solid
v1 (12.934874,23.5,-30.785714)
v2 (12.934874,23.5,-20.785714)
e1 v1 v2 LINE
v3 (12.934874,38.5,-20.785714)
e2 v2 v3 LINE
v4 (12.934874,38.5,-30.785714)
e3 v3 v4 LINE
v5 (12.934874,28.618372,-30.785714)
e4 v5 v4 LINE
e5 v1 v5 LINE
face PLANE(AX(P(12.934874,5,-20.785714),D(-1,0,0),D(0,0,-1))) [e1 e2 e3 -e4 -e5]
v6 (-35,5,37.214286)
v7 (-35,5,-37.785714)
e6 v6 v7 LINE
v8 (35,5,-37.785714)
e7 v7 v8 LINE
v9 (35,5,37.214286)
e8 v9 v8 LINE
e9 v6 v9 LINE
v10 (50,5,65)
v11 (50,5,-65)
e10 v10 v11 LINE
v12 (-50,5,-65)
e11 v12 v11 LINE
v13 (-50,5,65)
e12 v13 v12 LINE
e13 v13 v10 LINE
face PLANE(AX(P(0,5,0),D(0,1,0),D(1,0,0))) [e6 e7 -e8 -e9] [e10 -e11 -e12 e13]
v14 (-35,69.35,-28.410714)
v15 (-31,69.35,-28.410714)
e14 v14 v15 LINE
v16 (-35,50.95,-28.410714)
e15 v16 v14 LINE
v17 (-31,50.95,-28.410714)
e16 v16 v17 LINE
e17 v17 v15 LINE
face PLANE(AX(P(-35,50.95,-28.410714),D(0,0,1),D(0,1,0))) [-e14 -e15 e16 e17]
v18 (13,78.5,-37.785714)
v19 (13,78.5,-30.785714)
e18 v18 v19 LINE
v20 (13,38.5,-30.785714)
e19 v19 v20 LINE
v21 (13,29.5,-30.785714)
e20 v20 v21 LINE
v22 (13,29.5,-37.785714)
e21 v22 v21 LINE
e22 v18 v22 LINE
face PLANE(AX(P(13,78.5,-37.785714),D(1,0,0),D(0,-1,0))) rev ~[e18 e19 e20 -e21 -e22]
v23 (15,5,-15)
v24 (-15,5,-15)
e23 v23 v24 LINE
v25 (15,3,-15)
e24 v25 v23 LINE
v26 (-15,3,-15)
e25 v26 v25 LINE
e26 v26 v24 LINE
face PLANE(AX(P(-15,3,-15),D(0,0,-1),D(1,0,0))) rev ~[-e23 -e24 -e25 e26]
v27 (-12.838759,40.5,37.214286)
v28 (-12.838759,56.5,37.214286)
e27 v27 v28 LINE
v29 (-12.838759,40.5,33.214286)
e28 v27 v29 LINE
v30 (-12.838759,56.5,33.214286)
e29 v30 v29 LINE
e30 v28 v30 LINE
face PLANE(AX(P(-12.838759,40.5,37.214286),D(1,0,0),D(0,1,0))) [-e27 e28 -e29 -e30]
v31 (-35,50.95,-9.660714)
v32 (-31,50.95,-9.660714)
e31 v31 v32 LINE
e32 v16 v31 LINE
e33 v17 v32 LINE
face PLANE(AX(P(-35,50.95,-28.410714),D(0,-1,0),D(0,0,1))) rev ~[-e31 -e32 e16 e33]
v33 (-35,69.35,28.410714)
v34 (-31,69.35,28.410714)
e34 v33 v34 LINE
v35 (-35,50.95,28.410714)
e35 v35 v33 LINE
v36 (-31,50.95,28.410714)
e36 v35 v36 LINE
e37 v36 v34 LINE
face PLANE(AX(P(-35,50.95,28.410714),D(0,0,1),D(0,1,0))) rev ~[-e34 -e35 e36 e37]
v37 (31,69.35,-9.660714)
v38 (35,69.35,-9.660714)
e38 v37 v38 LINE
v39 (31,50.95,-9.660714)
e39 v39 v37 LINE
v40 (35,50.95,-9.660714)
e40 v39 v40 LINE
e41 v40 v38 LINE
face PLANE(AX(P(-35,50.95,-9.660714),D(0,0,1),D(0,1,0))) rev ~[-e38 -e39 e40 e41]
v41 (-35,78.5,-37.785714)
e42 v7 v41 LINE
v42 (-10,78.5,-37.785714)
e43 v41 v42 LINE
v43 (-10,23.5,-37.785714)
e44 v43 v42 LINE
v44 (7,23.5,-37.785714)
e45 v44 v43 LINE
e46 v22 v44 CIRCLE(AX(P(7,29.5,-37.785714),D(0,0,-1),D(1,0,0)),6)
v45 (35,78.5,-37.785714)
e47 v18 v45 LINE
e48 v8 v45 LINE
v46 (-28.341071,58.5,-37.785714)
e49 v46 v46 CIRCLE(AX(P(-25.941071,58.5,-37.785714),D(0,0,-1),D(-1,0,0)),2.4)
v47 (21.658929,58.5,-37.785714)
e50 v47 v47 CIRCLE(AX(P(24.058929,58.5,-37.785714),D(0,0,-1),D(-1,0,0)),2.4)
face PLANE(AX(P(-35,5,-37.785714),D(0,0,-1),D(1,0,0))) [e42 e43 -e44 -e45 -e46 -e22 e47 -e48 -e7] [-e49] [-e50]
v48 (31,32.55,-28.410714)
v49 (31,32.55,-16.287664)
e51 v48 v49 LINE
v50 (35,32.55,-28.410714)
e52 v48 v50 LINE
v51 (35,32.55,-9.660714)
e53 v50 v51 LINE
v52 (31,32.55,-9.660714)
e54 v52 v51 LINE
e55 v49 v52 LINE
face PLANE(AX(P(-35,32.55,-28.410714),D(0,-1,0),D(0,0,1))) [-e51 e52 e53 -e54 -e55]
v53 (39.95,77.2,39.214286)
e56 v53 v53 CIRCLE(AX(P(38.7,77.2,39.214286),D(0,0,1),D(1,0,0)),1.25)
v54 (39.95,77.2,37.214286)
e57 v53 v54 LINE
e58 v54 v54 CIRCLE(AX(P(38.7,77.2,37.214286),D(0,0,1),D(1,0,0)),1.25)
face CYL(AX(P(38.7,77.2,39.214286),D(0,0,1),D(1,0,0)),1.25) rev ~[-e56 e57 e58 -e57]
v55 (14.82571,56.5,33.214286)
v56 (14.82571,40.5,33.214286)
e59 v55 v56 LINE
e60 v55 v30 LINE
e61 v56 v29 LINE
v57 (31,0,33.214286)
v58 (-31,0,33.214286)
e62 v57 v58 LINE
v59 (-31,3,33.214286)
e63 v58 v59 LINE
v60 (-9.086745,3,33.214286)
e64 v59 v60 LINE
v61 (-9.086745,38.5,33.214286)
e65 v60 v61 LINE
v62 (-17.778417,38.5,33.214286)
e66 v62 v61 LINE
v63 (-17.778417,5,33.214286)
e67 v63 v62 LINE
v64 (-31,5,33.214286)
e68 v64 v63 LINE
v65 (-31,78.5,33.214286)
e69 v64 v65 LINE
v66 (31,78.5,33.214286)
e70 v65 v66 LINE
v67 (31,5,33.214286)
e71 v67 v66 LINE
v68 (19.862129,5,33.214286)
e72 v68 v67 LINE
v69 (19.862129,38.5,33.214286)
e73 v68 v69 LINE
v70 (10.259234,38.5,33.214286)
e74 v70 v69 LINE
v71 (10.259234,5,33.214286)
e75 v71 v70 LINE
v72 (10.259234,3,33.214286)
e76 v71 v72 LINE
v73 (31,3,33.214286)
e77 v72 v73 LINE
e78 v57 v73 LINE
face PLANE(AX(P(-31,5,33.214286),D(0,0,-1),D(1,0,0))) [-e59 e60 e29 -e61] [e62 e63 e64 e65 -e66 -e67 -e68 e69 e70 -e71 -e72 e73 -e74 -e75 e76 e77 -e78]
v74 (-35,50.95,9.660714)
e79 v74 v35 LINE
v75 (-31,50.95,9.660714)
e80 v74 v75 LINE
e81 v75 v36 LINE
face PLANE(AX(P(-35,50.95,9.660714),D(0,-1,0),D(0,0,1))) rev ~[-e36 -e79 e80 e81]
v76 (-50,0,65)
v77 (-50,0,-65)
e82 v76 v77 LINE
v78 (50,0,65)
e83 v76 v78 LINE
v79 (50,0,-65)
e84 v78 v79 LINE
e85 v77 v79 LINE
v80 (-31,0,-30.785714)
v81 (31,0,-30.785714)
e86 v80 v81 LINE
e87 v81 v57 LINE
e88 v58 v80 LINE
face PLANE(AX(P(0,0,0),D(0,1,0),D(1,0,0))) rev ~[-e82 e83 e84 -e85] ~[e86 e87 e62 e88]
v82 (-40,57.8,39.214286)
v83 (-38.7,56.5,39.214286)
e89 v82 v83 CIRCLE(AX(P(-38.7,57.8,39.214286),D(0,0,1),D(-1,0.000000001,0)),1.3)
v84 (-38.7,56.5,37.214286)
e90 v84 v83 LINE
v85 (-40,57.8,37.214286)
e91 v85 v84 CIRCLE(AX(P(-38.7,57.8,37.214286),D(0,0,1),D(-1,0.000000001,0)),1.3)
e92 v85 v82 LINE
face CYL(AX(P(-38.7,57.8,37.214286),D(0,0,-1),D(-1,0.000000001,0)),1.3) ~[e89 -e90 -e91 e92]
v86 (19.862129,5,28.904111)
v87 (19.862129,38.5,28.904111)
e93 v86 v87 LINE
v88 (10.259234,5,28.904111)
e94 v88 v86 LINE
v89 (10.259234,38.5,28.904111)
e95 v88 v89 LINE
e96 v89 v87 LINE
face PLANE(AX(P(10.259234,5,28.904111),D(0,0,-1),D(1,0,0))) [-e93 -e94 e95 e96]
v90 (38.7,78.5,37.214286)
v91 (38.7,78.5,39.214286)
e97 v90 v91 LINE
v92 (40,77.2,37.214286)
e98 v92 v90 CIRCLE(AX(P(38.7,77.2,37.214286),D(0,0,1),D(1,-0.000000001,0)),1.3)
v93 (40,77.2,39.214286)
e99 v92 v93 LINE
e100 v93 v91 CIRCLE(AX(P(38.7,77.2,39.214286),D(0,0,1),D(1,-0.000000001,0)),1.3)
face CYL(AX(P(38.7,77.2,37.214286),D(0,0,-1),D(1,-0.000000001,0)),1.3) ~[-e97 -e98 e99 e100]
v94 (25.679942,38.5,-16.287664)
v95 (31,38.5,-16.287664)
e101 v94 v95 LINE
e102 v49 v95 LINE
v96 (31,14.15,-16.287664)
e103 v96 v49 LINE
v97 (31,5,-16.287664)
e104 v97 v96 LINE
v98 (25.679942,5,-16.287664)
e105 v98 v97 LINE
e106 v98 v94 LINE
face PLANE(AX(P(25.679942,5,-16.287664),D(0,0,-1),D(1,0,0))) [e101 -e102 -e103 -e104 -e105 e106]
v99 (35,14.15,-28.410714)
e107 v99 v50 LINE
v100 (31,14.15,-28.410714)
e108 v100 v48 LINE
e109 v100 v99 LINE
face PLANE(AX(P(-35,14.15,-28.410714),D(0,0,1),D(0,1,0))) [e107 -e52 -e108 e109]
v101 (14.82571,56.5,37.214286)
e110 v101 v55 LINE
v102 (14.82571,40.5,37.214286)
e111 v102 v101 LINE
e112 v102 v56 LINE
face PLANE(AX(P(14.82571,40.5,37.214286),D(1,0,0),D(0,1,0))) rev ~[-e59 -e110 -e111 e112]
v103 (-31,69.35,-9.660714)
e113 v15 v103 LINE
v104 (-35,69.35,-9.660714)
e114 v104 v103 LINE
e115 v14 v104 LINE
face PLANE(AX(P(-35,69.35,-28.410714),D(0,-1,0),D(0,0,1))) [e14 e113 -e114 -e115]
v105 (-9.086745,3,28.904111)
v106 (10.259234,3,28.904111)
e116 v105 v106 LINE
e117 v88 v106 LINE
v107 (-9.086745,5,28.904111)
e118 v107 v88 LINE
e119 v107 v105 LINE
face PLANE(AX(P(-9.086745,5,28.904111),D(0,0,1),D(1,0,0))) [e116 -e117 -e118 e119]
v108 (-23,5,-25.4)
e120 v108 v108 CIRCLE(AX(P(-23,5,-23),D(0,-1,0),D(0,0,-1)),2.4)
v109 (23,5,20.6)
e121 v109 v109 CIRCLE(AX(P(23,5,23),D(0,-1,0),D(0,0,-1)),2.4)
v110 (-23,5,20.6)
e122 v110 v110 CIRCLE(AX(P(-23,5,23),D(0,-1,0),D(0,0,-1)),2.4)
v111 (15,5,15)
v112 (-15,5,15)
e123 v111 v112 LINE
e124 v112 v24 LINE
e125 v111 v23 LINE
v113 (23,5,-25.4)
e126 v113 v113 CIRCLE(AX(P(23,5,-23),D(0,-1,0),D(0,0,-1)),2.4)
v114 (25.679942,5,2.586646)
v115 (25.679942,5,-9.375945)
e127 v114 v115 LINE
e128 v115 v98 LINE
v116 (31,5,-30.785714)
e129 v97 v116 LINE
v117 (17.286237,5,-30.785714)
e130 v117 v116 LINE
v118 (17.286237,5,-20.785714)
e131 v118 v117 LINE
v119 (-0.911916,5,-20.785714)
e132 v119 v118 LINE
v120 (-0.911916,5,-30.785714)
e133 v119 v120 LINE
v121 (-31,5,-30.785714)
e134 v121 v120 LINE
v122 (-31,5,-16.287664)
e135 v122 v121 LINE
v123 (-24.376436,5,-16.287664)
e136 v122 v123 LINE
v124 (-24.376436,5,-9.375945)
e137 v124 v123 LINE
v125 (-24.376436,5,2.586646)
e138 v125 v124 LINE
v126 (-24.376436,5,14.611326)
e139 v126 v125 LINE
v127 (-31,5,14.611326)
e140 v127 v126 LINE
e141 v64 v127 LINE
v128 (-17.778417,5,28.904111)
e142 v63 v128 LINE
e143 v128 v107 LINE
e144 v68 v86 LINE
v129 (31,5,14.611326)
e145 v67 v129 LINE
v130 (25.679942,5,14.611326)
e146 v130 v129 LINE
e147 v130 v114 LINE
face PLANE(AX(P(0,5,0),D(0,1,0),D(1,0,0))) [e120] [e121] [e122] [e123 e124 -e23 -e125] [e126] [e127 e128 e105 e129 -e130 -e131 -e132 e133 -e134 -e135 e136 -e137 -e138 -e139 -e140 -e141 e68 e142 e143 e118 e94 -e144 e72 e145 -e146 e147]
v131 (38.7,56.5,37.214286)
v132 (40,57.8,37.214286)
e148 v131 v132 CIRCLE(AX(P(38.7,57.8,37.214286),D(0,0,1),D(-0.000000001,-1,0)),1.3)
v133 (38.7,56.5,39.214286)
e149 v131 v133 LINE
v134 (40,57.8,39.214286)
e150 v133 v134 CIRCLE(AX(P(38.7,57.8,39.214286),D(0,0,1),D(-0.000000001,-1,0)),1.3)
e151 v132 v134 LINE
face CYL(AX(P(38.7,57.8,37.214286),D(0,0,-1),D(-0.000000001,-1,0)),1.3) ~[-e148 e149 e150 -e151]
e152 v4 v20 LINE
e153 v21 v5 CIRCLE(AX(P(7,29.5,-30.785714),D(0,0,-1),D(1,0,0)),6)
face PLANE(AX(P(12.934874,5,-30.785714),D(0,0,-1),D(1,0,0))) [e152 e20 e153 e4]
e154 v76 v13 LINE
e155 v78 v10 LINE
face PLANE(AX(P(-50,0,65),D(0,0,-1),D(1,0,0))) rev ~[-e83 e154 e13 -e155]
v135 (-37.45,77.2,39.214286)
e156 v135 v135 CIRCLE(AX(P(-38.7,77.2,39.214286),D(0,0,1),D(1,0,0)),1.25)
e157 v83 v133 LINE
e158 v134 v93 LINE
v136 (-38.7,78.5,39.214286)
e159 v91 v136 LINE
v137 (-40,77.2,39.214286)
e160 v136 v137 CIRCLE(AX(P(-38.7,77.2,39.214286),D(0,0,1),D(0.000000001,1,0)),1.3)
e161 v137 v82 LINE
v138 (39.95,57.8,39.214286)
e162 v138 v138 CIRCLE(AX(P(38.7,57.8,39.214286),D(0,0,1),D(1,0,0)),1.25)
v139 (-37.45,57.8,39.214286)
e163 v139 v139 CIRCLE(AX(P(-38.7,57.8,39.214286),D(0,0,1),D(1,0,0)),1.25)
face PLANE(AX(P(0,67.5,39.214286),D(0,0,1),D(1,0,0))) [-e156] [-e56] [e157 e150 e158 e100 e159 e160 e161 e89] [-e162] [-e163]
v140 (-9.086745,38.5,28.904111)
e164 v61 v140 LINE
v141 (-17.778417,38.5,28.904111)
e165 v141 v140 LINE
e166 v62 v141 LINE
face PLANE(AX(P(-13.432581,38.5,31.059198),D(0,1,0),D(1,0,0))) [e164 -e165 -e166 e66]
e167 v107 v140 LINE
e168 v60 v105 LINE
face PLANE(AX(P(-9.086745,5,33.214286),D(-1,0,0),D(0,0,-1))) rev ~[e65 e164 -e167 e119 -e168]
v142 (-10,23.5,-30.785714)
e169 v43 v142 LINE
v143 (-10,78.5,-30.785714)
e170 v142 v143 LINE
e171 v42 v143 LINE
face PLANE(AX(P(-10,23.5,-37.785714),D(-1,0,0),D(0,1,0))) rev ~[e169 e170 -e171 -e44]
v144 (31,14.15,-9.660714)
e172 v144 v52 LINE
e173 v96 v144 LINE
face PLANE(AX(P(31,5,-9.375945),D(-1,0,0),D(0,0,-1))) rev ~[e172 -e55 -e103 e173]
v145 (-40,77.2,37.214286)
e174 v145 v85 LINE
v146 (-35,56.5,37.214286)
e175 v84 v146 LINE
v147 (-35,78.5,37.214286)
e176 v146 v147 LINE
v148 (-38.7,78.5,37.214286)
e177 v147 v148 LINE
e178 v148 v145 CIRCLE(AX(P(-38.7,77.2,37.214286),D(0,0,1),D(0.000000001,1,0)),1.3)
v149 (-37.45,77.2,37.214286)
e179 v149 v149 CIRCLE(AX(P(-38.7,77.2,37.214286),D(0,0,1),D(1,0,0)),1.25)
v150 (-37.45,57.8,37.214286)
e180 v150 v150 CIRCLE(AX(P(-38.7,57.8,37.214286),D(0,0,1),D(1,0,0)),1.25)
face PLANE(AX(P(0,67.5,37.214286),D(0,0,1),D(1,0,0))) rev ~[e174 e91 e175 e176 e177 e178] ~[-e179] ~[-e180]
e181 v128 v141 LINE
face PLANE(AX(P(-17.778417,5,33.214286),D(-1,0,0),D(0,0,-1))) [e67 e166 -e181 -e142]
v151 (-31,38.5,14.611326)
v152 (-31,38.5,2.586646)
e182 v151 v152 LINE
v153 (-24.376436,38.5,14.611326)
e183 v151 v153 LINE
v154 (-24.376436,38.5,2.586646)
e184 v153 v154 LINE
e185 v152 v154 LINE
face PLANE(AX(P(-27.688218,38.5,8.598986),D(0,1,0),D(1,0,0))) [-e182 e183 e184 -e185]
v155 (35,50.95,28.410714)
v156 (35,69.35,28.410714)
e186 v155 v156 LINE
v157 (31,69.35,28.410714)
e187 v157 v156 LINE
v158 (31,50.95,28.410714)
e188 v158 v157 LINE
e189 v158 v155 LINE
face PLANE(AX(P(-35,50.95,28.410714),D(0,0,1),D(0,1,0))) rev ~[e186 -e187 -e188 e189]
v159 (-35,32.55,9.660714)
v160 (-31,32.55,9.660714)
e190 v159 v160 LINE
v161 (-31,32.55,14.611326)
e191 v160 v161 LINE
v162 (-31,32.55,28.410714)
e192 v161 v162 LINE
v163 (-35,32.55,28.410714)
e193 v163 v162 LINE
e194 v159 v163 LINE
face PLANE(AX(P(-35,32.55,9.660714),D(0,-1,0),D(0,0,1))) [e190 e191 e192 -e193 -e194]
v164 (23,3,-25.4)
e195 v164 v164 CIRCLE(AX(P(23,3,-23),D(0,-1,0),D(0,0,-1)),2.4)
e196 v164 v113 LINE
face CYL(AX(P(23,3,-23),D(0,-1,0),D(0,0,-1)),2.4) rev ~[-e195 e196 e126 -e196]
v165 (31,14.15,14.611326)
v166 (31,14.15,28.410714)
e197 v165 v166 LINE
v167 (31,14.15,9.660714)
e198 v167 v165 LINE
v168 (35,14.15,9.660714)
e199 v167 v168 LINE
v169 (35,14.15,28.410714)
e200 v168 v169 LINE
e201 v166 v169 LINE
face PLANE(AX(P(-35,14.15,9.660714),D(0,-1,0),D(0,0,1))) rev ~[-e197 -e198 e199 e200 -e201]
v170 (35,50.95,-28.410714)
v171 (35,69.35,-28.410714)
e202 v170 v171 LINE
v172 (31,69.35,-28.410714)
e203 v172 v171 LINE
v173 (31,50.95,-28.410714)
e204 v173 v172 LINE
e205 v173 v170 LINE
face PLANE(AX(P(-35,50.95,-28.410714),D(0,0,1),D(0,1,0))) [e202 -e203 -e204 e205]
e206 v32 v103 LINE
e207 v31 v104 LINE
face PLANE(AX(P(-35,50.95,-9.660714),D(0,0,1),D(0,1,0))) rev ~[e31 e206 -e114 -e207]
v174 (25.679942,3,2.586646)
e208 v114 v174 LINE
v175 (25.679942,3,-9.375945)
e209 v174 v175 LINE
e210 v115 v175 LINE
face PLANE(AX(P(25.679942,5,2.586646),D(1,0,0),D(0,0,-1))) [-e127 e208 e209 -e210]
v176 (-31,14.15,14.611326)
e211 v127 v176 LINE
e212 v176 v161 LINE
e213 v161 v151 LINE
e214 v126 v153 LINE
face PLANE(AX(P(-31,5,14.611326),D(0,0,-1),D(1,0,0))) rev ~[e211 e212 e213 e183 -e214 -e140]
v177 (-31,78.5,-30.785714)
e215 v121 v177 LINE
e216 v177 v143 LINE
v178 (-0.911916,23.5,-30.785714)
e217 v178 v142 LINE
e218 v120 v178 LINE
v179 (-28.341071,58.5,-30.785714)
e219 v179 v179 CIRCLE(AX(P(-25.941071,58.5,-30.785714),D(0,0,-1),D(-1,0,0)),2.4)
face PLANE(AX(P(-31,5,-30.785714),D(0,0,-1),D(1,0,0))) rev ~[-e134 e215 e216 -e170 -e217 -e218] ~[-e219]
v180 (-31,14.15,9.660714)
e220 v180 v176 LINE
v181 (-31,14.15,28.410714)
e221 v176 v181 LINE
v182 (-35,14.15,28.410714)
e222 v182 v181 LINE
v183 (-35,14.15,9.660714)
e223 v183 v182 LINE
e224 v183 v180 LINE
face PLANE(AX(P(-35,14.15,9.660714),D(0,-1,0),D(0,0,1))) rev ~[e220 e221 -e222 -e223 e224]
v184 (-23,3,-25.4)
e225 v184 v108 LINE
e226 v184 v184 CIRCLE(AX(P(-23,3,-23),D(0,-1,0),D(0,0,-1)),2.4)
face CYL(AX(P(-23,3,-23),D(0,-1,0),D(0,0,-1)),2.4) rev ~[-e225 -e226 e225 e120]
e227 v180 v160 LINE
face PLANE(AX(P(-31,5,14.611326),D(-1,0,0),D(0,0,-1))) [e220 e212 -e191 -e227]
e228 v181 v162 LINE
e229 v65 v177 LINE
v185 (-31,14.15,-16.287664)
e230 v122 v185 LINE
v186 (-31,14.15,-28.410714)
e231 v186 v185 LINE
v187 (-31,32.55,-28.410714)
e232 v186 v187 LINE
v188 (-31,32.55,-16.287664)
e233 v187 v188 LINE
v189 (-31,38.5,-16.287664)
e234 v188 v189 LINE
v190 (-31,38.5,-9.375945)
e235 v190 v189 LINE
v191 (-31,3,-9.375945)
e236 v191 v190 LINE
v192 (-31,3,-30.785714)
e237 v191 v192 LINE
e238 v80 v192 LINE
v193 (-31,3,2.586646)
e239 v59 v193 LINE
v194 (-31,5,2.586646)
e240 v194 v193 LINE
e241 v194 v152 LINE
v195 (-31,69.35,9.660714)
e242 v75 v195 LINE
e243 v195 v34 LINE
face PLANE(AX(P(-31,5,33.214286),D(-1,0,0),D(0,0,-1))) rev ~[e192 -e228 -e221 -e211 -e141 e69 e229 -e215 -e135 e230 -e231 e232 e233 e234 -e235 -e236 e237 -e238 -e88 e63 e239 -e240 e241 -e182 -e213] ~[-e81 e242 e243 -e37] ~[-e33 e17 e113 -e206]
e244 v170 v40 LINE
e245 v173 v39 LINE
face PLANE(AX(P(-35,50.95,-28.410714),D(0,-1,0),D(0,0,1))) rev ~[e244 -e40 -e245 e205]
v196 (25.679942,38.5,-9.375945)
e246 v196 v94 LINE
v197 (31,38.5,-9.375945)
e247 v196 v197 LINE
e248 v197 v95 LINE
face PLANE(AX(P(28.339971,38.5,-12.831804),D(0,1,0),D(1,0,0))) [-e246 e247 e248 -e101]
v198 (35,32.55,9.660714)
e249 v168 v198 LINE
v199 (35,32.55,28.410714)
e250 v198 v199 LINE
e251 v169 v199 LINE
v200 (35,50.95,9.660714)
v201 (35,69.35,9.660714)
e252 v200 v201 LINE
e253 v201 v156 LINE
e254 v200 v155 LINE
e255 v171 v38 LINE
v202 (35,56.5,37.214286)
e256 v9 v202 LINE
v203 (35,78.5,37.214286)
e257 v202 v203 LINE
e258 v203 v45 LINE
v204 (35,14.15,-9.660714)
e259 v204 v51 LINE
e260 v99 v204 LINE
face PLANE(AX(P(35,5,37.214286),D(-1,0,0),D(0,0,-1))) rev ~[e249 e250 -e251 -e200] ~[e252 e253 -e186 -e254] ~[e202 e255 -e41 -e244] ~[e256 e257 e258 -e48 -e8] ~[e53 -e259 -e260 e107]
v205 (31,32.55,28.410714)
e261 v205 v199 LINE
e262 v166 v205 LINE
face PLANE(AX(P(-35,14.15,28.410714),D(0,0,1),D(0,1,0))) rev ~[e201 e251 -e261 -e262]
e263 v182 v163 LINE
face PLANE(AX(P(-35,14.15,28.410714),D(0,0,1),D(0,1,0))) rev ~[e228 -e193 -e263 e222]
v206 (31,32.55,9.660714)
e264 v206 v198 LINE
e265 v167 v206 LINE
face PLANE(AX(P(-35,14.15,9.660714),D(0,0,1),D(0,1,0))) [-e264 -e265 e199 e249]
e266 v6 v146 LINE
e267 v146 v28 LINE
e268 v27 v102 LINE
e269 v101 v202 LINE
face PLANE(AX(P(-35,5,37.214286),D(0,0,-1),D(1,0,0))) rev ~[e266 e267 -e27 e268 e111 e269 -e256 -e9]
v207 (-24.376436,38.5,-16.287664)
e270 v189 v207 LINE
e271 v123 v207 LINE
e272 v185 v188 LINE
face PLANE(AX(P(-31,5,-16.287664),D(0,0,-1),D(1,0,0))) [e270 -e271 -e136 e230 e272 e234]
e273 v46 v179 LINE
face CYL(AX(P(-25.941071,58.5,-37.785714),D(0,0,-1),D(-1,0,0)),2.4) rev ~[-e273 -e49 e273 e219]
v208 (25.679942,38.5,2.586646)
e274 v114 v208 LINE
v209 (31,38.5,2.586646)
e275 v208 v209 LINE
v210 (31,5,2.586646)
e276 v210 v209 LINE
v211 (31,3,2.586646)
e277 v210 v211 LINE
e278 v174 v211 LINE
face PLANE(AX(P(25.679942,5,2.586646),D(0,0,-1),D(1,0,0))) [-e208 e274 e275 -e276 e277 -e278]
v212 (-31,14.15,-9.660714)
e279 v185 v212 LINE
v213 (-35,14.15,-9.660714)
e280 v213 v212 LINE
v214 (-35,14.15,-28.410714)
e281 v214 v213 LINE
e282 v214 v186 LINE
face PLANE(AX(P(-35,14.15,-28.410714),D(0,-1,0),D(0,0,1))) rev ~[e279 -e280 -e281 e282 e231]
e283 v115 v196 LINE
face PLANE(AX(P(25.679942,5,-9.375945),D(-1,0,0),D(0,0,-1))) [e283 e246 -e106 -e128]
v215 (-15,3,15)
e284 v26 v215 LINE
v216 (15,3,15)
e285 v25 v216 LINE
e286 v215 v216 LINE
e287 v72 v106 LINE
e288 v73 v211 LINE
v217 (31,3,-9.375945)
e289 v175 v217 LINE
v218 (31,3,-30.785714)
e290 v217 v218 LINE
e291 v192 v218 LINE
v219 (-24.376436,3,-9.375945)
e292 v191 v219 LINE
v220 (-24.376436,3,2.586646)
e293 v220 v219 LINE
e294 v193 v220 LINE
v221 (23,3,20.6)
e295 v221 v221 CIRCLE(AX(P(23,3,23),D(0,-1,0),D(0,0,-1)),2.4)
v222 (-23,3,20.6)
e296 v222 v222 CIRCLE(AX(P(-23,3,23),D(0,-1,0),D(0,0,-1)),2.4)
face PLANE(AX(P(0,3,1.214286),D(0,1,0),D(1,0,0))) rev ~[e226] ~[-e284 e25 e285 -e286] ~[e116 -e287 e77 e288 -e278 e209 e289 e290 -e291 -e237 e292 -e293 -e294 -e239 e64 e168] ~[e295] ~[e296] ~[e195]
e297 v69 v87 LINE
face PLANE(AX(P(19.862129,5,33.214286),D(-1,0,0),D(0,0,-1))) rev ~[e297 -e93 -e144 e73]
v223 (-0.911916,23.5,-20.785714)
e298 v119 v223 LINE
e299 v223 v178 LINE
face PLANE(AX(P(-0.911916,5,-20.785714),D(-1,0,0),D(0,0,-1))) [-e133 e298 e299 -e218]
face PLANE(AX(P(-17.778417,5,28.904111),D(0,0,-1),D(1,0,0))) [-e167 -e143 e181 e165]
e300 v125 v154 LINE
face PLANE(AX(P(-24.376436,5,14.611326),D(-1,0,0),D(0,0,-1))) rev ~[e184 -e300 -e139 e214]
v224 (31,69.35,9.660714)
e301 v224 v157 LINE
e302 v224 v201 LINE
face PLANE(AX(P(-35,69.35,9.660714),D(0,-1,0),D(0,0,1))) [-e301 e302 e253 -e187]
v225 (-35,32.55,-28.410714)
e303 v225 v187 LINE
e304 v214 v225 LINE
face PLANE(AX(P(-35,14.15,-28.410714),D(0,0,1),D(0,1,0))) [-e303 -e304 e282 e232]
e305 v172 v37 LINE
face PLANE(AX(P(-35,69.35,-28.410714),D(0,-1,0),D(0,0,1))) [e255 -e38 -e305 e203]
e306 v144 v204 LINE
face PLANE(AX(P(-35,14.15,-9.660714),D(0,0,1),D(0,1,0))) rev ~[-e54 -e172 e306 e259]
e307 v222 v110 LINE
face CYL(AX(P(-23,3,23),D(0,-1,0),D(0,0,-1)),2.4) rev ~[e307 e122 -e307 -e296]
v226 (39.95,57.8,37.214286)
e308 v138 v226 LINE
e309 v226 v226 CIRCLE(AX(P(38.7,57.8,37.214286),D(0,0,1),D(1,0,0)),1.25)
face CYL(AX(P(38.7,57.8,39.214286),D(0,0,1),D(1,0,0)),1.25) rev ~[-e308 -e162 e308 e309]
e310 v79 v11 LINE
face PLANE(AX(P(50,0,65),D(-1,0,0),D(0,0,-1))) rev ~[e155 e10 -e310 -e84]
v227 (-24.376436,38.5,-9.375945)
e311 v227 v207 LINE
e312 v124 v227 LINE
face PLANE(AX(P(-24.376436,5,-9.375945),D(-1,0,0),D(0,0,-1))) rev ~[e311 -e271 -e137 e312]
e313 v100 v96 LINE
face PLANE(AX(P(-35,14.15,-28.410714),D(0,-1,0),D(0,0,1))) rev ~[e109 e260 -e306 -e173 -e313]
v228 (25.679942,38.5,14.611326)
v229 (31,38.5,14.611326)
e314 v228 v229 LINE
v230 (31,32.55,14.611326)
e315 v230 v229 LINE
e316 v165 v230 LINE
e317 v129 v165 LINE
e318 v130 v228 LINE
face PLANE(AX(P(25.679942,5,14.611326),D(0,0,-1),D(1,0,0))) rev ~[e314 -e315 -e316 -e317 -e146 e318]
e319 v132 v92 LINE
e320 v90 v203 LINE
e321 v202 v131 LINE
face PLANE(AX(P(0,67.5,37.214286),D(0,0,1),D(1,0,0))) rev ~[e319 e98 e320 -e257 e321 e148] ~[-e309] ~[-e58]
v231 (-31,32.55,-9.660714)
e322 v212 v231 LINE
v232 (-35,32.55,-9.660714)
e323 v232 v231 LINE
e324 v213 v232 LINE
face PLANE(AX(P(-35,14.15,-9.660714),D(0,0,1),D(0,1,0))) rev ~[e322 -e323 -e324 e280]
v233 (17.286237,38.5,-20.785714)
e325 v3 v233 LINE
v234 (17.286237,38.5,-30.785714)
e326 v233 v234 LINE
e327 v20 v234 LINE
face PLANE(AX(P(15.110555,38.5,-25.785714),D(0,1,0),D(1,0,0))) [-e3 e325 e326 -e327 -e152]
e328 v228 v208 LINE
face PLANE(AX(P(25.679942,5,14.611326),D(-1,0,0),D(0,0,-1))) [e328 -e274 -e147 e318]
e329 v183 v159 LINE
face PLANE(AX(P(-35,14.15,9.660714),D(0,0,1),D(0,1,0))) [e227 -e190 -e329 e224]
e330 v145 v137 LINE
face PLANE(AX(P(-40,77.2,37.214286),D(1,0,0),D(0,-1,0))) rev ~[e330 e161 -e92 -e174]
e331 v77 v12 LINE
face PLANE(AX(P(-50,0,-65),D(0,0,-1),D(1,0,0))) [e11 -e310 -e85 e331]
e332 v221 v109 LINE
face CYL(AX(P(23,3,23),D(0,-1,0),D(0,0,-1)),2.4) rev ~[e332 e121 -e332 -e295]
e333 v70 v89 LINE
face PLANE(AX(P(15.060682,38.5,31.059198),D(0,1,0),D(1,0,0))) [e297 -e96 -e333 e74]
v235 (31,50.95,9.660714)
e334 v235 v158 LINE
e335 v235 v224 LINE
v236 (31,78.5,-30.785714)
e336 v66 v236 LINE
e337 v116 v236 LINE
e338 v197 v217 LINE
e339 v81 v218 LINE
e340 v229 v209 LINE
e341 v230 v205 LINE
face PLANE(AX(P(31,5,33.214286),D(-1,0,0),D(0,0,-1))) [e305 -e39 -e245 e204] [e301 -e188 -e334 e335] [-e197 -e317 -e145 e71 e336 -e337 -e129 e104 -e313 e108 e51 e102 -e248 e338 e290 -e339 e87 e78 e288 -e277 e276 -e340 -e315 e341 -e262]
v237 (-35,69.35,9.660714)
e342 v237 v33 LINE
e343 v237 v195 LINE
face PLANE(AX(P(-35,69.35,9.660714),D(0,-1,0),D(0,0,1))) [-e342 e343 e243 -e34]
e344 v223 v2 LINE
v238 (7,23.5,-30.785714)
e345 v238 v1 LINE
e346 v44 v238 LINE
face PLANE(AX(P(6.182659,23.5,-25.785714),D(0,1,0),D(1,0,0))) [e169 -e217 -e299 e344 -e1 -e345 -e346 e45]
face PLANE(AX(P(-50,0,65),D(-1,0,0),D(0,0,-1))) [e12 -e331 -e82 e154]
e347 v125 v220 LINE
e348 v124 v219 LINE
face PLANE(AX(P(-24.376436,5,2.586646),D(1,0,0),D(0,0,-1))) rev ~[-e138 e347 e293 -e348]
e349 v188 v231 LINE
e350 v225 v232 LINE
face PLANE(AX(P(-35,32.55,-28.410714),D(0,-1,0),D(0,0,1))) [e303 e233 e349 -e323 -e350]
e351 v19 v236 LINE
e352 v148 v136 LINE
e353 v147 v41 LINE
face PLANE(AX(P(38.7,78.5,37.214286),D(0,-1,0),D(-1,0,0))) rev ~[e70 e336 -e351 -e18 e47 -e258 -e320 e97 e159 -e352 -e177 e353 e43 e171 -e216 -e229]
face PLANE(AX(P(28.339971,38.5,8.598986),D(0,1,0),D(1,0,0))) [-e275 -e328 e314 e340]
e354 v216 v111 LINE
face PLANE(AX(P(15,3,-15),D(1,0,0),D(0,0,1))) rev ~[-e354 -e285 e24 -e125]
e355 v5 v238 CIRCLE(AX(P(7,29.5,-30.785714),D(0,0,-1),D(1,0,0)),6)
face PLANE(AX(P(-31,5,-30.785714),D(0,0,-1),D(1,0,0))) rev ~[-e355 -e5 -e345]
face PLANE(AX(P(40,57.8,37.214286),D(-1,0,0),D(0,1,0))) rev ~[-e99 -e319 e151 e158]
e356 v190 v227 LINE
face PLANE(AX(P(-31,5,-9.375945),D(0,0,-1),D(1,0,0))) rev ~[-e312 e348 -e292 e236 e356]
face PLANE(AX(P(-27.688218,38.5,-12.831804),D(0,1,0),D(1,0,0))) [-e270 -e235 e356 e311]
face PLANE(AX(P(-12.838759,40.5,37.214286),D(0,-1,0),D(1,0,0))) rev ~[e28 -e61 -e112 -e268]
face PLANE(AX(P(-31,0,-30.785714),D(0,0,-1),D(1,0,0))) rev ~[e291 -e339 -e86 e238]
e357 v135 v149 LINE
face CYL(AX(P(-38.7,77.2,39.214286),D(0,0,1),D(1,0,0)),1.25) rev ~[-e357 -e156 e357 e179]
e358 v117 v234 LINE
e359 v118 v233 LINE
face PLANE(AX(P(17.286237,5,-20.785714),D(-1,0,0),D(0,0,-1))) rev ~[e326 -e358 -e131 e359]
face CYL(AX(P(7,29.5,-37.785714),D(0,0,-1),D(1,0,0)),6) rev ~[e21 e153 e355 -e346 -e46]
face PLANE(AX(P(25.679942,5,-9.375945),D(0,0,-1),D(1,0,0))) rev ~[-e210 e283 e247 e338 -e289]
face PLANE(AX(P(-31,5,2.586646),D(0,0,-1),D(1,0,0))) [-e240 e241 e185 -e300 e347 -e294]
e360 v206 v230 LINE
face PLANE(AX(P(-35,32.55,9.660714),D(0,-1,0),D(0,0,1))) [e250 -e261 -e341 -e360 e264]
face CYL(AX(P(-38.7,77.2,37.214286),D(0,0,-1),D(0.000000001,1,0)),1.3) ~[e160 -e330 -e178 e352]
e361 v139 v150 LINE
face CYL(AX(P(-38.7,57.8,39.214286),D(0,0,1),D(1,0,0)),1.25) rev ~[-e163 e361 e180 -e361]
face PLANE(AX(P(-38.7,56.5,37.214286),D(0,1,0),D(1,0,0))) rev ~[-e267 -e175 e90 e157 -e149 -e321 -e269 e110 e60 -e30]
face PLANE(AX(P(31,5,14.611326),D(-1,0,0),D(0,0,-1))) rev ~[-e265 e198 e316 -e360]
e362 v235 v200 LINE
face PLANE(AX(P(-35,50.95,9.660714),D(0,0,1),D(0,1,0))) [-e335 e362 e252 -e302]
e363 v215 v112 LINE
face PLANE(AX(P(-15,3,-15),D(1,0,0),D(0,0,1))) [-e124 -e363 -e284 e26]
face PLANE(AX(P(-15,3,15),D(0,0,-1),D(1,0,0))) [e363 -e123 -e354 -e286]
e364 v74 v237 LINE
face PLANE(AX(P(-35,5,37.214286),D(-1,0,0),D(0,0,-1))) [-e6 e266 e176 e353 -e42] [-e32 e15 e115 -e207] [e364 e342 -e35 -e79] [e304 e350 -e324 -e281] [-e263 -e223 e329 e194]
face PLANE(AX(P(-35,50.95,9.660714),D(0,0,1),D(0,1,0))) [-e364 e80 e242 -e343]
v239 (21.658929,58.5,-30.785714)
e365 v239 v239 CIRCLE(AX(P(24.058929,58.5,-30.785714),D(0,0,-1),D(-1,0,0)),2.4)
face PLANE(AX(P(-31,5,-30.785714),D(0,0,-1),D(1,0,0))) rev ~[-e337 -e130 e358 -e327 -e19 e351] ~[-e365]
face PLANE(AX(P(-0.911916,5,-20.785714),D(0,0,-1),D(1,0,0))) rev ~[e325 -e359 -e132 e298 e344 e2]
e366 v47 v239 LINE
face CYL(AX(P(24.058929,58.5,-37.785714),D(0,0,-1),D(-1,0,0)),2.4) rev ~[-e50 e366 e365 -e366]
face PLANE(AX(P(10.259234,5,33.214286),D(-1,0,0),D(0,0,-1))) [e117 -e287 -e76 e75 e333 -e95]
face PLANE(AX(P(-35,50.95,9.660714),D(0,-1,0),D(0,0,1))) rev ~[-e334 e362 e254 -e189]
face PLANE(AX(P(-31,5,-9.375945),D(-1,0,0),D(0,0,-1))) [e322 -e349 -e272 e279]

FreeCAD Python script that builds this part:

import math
import FreeCAD as App
import Part
import Sketcher

V = App.Vector
Q = App.Units.Quantity


def add_polygon(sketch, points):
    """Adds a closed chain of lines whose ends are joined by coincident constraints."""
    first, n = sketch.GeometryCount, len(points)
    for a, b in zip(points, points[1:] + points[:1]):
        sketch.addGeometry(Part.LineSegment(App.Vector(*a, 0), App.Vector(*b, 0)), False)
    for i in range(n):
        sketch.addConstraint(Sketcher.Constraint("Coincident", first + i, 2, first + (i + 1) % n, 1))

doc = App.newDocument("Part")
body = doc.addObject("PartDesign::Body", "Body")

# Sketch on XZ plane
sketch1 = body.newObject("Sketcher::SketchObject", "Sketch")
sketch1.AttachmentSupport = (doc.getObject("XZ_Plane"), [""])
sketch1.MapMode = "FlatFace"
add_polygon(sketch1, [(-50, -65), (-50, 65), (50, 65), (50, -65)])  # lines 0-3
sketch1.addConstraint([
    Sketcher.Constraint("Vertical", 0),
    Sketcher.Constraint("Horizontal", 1),
    Sketcher.Constraint("Vertical", 2),
    Sketcher.Constraint("Horizontal", 3),
    Sketcher.Constraint("Symmetric", 0, 2, 2, 2, -1, 1),
    Sketcher.Constraint("DistanceX", 1, 1, 1, 2, Q("100 mm")),
    Sketcher.Constraint("DistanceY", 0, 1, 0, 2, Q("130 mm")),
])
pad1 = body.newObject("PartDesign::Pad", "Pad")
pad1.Profile = sketch1
pad1.Length = 5
pad1.Reversed = True

# Sketch on XZ plane
sketch2 = body.newObject("Sketcher::SketchObject", "Sketch001")
sketch2.AttachmentSupport = (doc.getObject("XZ_Plane"), [""])
sketch2.MapMode = "FlatFace"
sketch2.AttachmentOffset = App.Placement(V(0, 0, -5), App.Rotation())
add_polygon(sketch2, [(-35, -37.785714), (-35, 37.214286), (35, 37.214286), (35, -37.785714)])  # lines 0-3
add_polygon(sketch2, [(31, 33.214286), (-31, 33.214286), (-31, -30.785714), (31, -30.785714)])  # lines 4-7
sketch2.addConstraint([
    Sketcher.Constraint("Vertical", 0),
    Sketcher.Constraint("Horizontal", 1),
    Sketcher.Constraint("Vertical", 2),
    Sketcher.Constraint("Horizontal", 3),
    Sketcher.Constraint("Horizontal", 4),
    Sketcher.Constraint("Vertical", 5),
    Sketcher.Constraint("Horizontal", 6),
    Sketcher.Constraint("Vertical", 7),
    Sketcher.Constraint("DistanceX", 1, 1, 1, 2, Q("70 mm")),
    Sketcher.Constraint("DistanceX", 4, 2, 4, 1, Q("62 mm")),
    Sketcher.Constraint("DistanceY", 0, 1, 0, 2, Q("75 mm")),
    Sketcher.Constraint("DistanceY", 5, 2, 5, 1, Q("64 mm")),
    Sketcher.Constraint("DistanceX", 0, 2, -1, 1, Q("35 mm")),
    Sketcher.Constraint("DistanceX", 4, 2, -1, 1, Q("31 mm")),
    Sketcher.Constraint("DistanceY", 4, 2, 0, 2, Q("4 mm")),
    Sketcher.Constraint("DistanceY", -1, 1, 0, 2, Q("37.214286 mm")),
])
pad2 = body.newObject("PartDesign::Pad", "Pad001")
pad2.Profile = sketch2
pad2.Length = 73.5
pad2.Reversed = True

# Sketch on YZ plane
sketch3 = body.newObject("Sketcher::SketchObject", "Sketch002")
sketch3.AttachmentSupport = (doc.getObject("YZ_Plane"), [""])
sketch3.MapMode = "FlatFace"
sketch3.AttachmentOffset = App.Placement(V(0, 0, -35), App.Rotation())
add_polygon(sketch3, [(69.35, -28.410714), (50.95, -28.410714), (50.95, -9.660714), (69.35, -9.660714)])  # lines 0-3
add_polygon(sketch3, [(69.35, 9.660714), (50.95, 9.660714), (50.95, 28.410714), (69.35, 28.410714)])  # lines 4-7
add_polygon(sketch3, [(32.55, 9.660714), (14.15, 9.660714), (14.15, 28.410714), (32.55, 28.410714)])  # lines 8-11
add_polygon(sketch3, [(32.55, -28.410714), (14.15, -28.410714), (14.15, -9.660714), (32.55, -9.660714)])  # lines 12-15
sketch3.addConstraint([
    Sketcher.Constraint("Horizontal", 0),
    Sketcher.Constraint("Vertical", 1),
    Sketcher.Constraint("Horizontal", 2),
    Sketcher.Constraint("Vertical", 3),
    Sketcher.Constraint("Horizontal", 4),
    Sketcher.Constraint("Vertical", 5),
    Sketcher.Constraint("Horizontal", 6),
    Sketcher.Constraint("Vertical", 7),
    Sketcher.Constraint("Horizontal", 8),
    Sketcher.Constraint("Vertical", 9),
    Sketcher.Constraint("Horizontal", 10),
    Sketcher.Constraint("Vertical", 11),
    Sketcher.Constraint("Horizontal", 12),
    Sketcher.Constraint("Vertical", 13),
    Sketcher.Constraint("Horizontal", 14),
    Sketcher.Constraint("Vertical", 15),
    Sketcher.Constraint("Symmetric", 1, 2, 4, 2, -1),
    Sketcher.Constraint("Symmetric", 3, 2, 6, 2, -1),
    Sketcher.Constraint("Symmetric", 9, 2, 12, 2, -1),
    Sketcher.Constraint("Symmetric", 11, 2, 14, 2, -1),
    Sketcher.Constraint("Horizontal", 7, 2, 8, 2),
    Sketcher.Constraint("Horizontal", 6, 2, 9, 2),
    Sketcher.Constraint("Equal", 6, 8),
    Sketcher.Constraint("DistanceX", 0, 2, 0, 1, Q("18.4 mm")),
    Sketcher.Constraint("DistanceY", 1, 1, 1, 2, Q("18.75 mm")),
    Sketcher.Constraint("DistanceX", 8, 2, 4, 2, Q("36.8 mm")),
    Sketcher.Constraint("DistanceX", -1, 1, 0, 2, Q("50.95 mm")),
    Sketcher.Constraint("DistanceY", 1, 2, 4, 2, Q("19.321429 mm")),
])
pocket1 = body.newObject("PartDesign::Pocket", "Pocket")
pocket1.Profile = sketch3
pocket1.Type = "ThroughAll"
pocket1.Reversed = True

# Sketch on XY plane
sketch4 = body.newObject("Sketcher::SketchObject", "Sketch003")
sketch4.AttachmentSupport = (doc.getObject("XY_Plane"), [""])
sketch4.MapMode = "FlatFace"
sketch4.AttachmentOffset = App.Placement(V(0, 0, -37.785714), App.Rotation())
sketch4.addGeometry([
    Part.LineSegment(V(13, 78.5, 0), V(13, 29.5, 0)),  # 0
    Part.ArcOfCircle(Part.Circle(V(7, 29.5, 0), V(0, 0, 1), 6), math.radians(-90), math.radians(0)),  # 1
    Part.LineSegment(V(7, 23.5, 0), V(-10, 23.5, 0)),  # 2
    Part.LineSegment(V(-10, 23.5, 0), V(-10, 78.5, 0)),  # 3
    Part.LineSegment(V(-10, 78.5, 0), V(13, 78.5, 0)),  # 4
], False)
sketch4.addConstraint([
    Sketcher.Constraint("Tangent", 0, 2, 1, 2),
    Sketcher.Constraint("Tangent", 1, 1, 2, 1),
    Sketcher.Constraint("Coincident", 2, 2, 3, 1),
    Sketcher.Constraint("Coincident", 3, 2, 4, 1),
    Sketcher.Constraint("Coincident", 4, 2, 0, 1),
    Sketcher.Constraint("Vertical", 0),
    Sketcher.Constraint("Horizontal", 2),
    Sketcher.Constraint("Vertical", 3),
    Sketcher.Constraint("Horizontal", 4),
    Sketcher.Constraint("Radius", 1, Q("6 mm")),
    Sketcher.Constraint("DistanceX", 2, 2, 2, 1, Q("17 mm")),
    Sketcher.Constraint("DistanceY", 0, 2, 0, 1, Q("49 mm")),
    Sketcher.Constraint("DistanceX", -1, 1, 1, 3, Q("7 mm")),
    Sketcher.Constraint("DistanceY", -1, 1, 1, 3, Q("29.5 mm")),
])
pocket2 = body.newObject("PartDesign::Pocket", "Pocket001")
pocket2.Profile = sketch4
pocket2.Length = 10
pocket2.Reversed = True

# Sketch on XZ plane
sketch5 = body.newObject("Sketcher::SketchObject", "Sketch004")
sketch5.AttachmentSupport = (doc.getObject("XZ_Plane"), [""])
sketch5.MapMode = "FlatFace"
add_polygon(sketch5, [(-31, -30.785714), (-31, 33.214286), (31, 33.214286), (31, -30.785714)])  # lines 0-3
sketch5.addConstraint([
    Sketcher.Constraint("Vertical", 0),
    Sketcher.Constraint("Horizontal", 1),
    Sketcher.Constraint("Vertical", 2),
    Sketcher.Constraint("Horizontal", 3),
    Sketcher.Constraint("DistanceX", 1, 1, 1, 2, Q("62 mm")),
    Sketcher.Constraint("DistanceY", 0, 1, 0, 2, Q("64 mm")),
    Sketcher.Constraint("DistanceX", 0, 2, -1, 1, Q("31 mm")),
    Sketcher.Constraint("DistanceY", -1, 1, 0, 2, Q("33.214286 mm")),
])
pocket3 = body.newObject("PartDesign::Pocket", "Pocket002")
pocket3.Profile = sketch5
pocket3.Length = 3

# Sketch on XZ plane
sketch6 = body.newObject("Sketcher::SketchObject", "Sketch005")
sketch6.AttachmentSupport = (doc.getObject("XZ_Plane"), [""])
sketch6.MapMode = "FlatFace"
sketch6.AttachmentOffset = App.Placement(V(0, 0, -3), App.Rotation())
add_polygon(sketch6, [(-15, 15), (-15, -15), (15, -15), (15, 15)])  # lines 0-3
sketch6.addConstraint([
    Sketcher.Constraint("Vertical", 0),
    Sketcher.Constraint("Horizontal", 1),
    Sketcher.Constraint("Vertical", 2),
    Sketcher.Constraint("Horizontal", 3),
    Sketcher.Constraint("Symmetric", 0, 2, 2, 2, -1, 1),
    Sketcher.Constraint("Equal", 3, 0),
    Sketcher.Constraint("DistanceX", 1, 1, 1, 2, Q("30 mm")),
])
pocket4 = body.newObject("PartDesign::Pocket", "Pocket003")
pocket4.Profile = sketch6
pocket4.Length = 3

# Sketch on XZ plane
sketch7 = body.newObject("Sketcher::SketchObject", "Sketch006")
sketch7.AttachmentSupport = (doc.getObject("XZ_Plane"), [""])
sketch7.MapMode = "FlatFace"
sketch7.AttachmentOffset = App.Placement(V(0, 0, -3), App.Rotation())
sketch7.addGeometry([
    Part.Circle(V(-23, -23, 0), V(0, 0, 1), 2.4),
    Part.Circle(V(23, -23, 0), V(0, 0, 1), 2.4),
    Part.Circle(V(23, 23, 0), V(0, 0, 1), 2.4),
    Part.Circle(V(-23, 23, 0), V(0, 0, 1), 2.4),
], False)
sketch7.addConstraint([
    Sketcher.Constraint("Equal", 0, 1),
    Sketcher.Constraint("Equal", 1, 2),
    Sketcher.Constraint("Equal", 2, 3),
    Sketcher.Constraint("Symmetric", 0, 3, 2, 3, -1, 1),
    Sketcher.Constraint("Symmetric", 1, 3, 3, 3, -1, 1),
    Sketcher.Constraint("Symmetric", 0, 3, 1, 3, -2),
    Sketcher.Constraint("Diameter", 0, Q("4.8 mm")),
    Sketcher.Constraint("DistanceX", 0, 3, -1, 1, Q("23 mm")),
    Sketcher.Constraint("DistanceY", 0, 3, -1, 1, Q("23 mm")),
])
pocket5 = body.newObject("PartDesign::Pocket", "Pocket004")
pocket5.Profile = sketch7
pocket5.Type = "ThroughAll"

# Sketch on XZ plane
sketch8 = body.newObject("Sketcher::SketchObject", "Sketch007")
sketch8.AttachmentSupport = (doc.getObject("XZ_Plane"), [""])
sketch8.MapMode = "FlatFace"
sketch8.AttachmentOffset = App.Placement(V(0, 0, -5), App.Rotation())
add_polygon(sketch8, [(-0.911916, -30.785714), (-0.911916, -20.785714), (13.277234, -20.785714), (13.277234, -30.785714)])  # lines 0-3
sketch8.addConstraint([
    Sketcher.Constraint("Vertical", 0),
    Sketcher.Constraint("Horizontal", 1),
    Sketcher.Constraint("Vertical", 2),
    Sketcher.Constraint("Horizontal", 3),
    Sketcher.Constraint("DistanceY", 0, 1, 0, 2, Q("10 mm")),
    Sketcher.Constraint("DistanceX", 1, 1, 1, 2, Q("14.18915 mm")),
    Sketcher.Constraint("DistanceX", 0, 2, -1, 1, Q("0.911916 mm")),
    Sketcher.Constraint("DistanceY", 0, 2, -1, 1, Q("20.785714 mm")),
])
pad3 = body.newObject("PartDesign::Pad", "Pad002")
pad3.Profile = sketch8
pad3.Length = 18.5
pad3.Reversed = True

# Sketch on XZ plane
sketch9 = body.newObject("Sketcher::SketchObject", "Sketch008")
sketch9.AttachmentSupport = (doc.getObject("XZ_Plane"), [""])
sketch9.MapMode = "FlatFace"
sketch9.AttachmentOffset = App.Placement(V(0, 0, -5), App.Rotation())
add_polygon(sketch9, [(12.934874, -30.785714), (12.934874, -20.785714), (17.286237, -20.785714), (17.286237, -30.785714)])  # lines 0-3
sketch9.addConstraint([
    Sketcher.Constraint("Vertical", 0),
    Sketcher.Constraint("Horizontal", 1),
    Sketcher.Constraint("Vertical", 2),
    Sketcher.Constraint("Horizontal", 3),
    Sketcher.Constraint("DistanceY", 0, 1, 0, 2, Q("10 mm")),
    Sketcher.Constraint("DistanceX", 1, 1, 1, 2, Q("4.351363 mm")),
    Sketcher.Constraint("DistanceX", -1, 1, 0, 2, Q("12.934874 mm")),
    Sketcher.Constraint("DistanceY", 0, 2, -1, 1, Q("20.785714 mm")),
])
pad4 = body.newObject("PartDesign::Pad", "Pad003")
pad4.Profile = sketch9
pad4.Length = 33.5
pad4.Reversed = True

# Sketch on XZ plane
sketch10 = body.newObject("Sketcher::SketchObject", "Sketch009")
sketch10.AttachmentSupport = (doc.getObject("XZ_Plane"), [""])
sketch10.MapMode = "FlatFace"
sketch10.AttachmentOffset = App.Placement(V(0, 0, -5), App.Rotation())
add_polygon(sketch10, [(-31, -16.287664), (-31, -9.375945), (-24.376436, -9.375945), (-24.376436, -16.287664)])  # lines 0-3
add_polygon(sketch10, [(-31, 2.586646), (-31, 14.611326), (-24.376436, 14.611326), (-24.376436, 2.586646)])  # lines 4-7
add_polygon(sketch10, [(25.679942, -16.287664), (25.679942, -9.375945), (31, -9.375945), (31, -16.287664)])  # lines 8-11
add_polygon(sketch10, [(25.679942, 2.586646), (25.679942, 14.611326), (31, 14.611326), (31, 2.586646)])  # lines 12-15
add_polygon(sketch10, [(-17.778417, 28.904111), (-17.778417, 33.214286), (-9.086745, 33.214286), (-9.086745, 28.904111)])  # lines 16-19
add_polygon(sketch10, [(10.259234, 28.904111), (10.259234, 33.214286), (19.862129, 33.214286), (19.862129, 28.904111)])  # lines 20-23
sketch10.addConstraint([
    Sketcher.Constraint("Vertical", 0),
    Sketcher.Constraint("Horizontal", 1),
    Sketcher.Constraint("Vertical", 2),
    Sketcher.Constraint("Horizontal", 3),
    Sketcher.Constraint("Vertical", 4),
    Sketcher.Constraint("Horizontal", 5),
    Sketcher.Constraint("Vertical", 6),
    Sketcher.Constraint("Horizontal", 7),
    Sketcher.Constraint("Vertical", 8),
    Sketcher.Constraint("Horizontal", 9),
    Sketcher.Constraint("Vertical", 10),
    Sketcher.Constraint("Horizontal", 11),
    Sketcher.Constraint("Vertical", 12),
    Sketcher.Constraint("Horizontal", 13),
    Sketcher.Constraint("Vertical", 14),
    Sketcher.Constraint("Horizontal", 15),
    Sketcher.Constraint("Vertical", 16),
    Sketcher.Constraint("Horizontal", 17),
    Sketcher.Constraint("Vertical", 18),
    Sketcher.Constraint("Horizontal", 19),
    Sketcher.Constraint("Vertical", 20),
    Sketcher.Constraint("Horizontal", 21),
    Sketcher.Constraint("Vertical", 22),
    Sketcher.Constraint("Horizontal", 23),
    Sketcher.Constraint("Symmetric", 0, 2, 9, 2, -2),
    Sketcher.Constraint("Symmetric", 4, 2, 13, 2, -2),
    Sketcher.Constraint("Horizontal", 3, 2, 10, 2),
    Sketcher.Constraint("Horizontal", 7, 2, 14, 2),
    Sketcher.Constraint("Horizontal", 17, 2, 20, 2),
    Sketcher.Constraint("Horizontal", 19, 2, 22, 2),
    Sketcher.Constraint("Vertical", 3, 2, 4, 2),
    Sketcher.Constraint("Vertical", 2, 2, 5, 2),
    Sketcher.Constraint("Vertical", 11, 2, 12, 2),
    Sketcher.Constraint("DistanceX", 0, 2, -1, 1, Q("31 mm")),
    Sketcher.Constraint("DistanceX", 9, 1, 9, 2, Q("5.320058 mm")),
    Sketcher.Constraint("DistanceX", 17, 1, 17, 2, Q("8.691672 mm")),
    Sketcher.Constraint("DistanceY", 0, 1, 0, 2, Q("6.911719 mm")),
    Sketcher.Constraint("DistanceY", 4, 1, 4, 2, Q("12.02468 mm")),
    Sketcher.Constraint("DistanceX", 1, 1, 1, 2, Q("6.623564 mm")),
    Sketcher.Constraint("DistanceX", 21, 1, 21, 2, Q("9.602895 mm")),
    Sketcher.Constraint("DistanceY", 16, 1, 16, 2, Q("4.310175 mm")),
    Sketcher.Constraint("DistanceY", -1, 1, 18, 2, Q("28.904111 mm")),
    Sketcher.Constraint("DistanceX", -1, 1, 21, 2, Q("19.862129 mm")),
    Sketcher.Constraint("DistanceY", 0, 2, 4, 2, Q("23.987271 mm")),
    Sketcher.Constraint("DistanceX", 5, 2, 16, 2, Q("6.598019 mm")),
    Sketcher.Constraint("DistanceY", 5, 2, 16, 2, Q("18.60296 mm")),
])
pad5 = body.newObject("PartDesign::Pad", "Pad004")
pad5.Profile = sketch10
pad5.Length = 33.5
pad5.Reversed = True

# Sketch on XY plane
sketch11 = body.newObject("Sketcher::SketchObject", "Sketch010")
sketch11.AttachmentSupport = (doc.getObject("XY_Plane"), [""])
sketch11.MapMode = "FlatFace"
sketch11.AttachmentOffset = App.Placement(V(0, 0, -37.785714), App.Rotation())
sketch11.addGeometry([
    Part.Circle(V(24.058929, 58.5, 0), V(0, 0, 1), 2.4),
    Part.Circle(V(-25.941071, 58.5, 0), V(0, 0, 1), 2.4),
], False)
sketch11.addConstraint([
    Sketcher.Constraint("Equal", 0, 1),
    Sketcher.Constraint("Horizontal", 0, 3, 1, 3),
    Sketcher.Constraint("Diameter", 0, Q("4.8 mm")),
    Sketcher.Constraint("DistanceX", 1, 3, 0, 3, Q("50 mm")),
    Sketcher.Constraint("DistanceY", -1, 1, 0, 3, Q("58.5 mm")),
    Sketcher.Constraint("DistanceX", -1, 1, 0, 3, Q("24.058929 mm")),
])
pocket6 = body.newObject("PartDesign::Pocket", "Pocket005")
pocket6.Profile = sketch11
pocket6.Length = 40
pocket6.Reversed = True

# Sketch on XY plane
sketch12 = body.newObject("Sketcher::SketchObject", "Sketch011")
sketch12.AttachmentSupport = (doc.getObject("XY_Plane"), [""])
sketch12.MapMode = "FlatFace"
sketch12.AttachmentOffset = App.Placement(V(0, 0, 37.214286), App.Rotation())
sketch12.addGeometry([
    Part.LineSegment(V(-38.7, 56.5, 0), V(38.7, 56.5, 0)),  # 0
    Part.ArcOfCircle(Part.Circle(V(38.7, 57.8, 0), V(0, 0, 1), 1.3), math.radians(-90), math.radians(0)),  # 1
    Part.LineSegment(V(40, 57.8, 0), V(40, 77.2, 0)),  # 2
    Part.ArcOfCircle(Part.Circle(V(38.7, 77.2, 0), V(0, 0, 1), 1.3), math.radians(0), math.radians(90)),  # 3
    Part.LineSegment(V(38.7, 78.5, 0), V(-38.7, 78.5, 0)),  # 4
    Part.ArcOfCircle(Part.Circle(V(-38.7, 77.2, 0), V(0, 0, 1), 1.3), math.radians(90), math.radians(180)),  # 5
    Part.LineSegment(V(-40, 77.2, 0), V(-40, 57.8, 0)),  # 6
    Part.ArcOfCircle(Part.Circle(V(-38.7, 57.8, 0), V(0, 0, 1), 1.3), math.radians(180), math.radians(270)),  # 7
], False)
sketch12.addConstraint([
    Sketcher.Constraint("Tangent", 0, 2, 1, 1),
    Sketcher.Constraint("Tangent", 1, 2, 2, 1),
    Sketcher.Constraint("Tangent", 2, 2, 3, 1),
    Sketcher.Constraint("Tangent", 3, 2, 4, 1),
    Sketcher.Constraint("Tangent", 4, 2, 5, 1),
    Sketcher.Constraint("Tangent", 5, 2, 6, 1),
    Sketcher.Constraint("Tangent", 6, 2, 7, 1),
    Sketcher.Constraint("Tangent", 7, 2, 0, 1),
    Sketcher.Constraint("Horizontal", 0),
    Sketcher.Constraint("Vertical", 2),
    Sketcher.Constraint("Horizontal", 4),
    Sketcher.Constraint("Vertical", 6),
    Sketcher.Constraint("Equal", 1, 3),
    Sketcher.Constraint("Equal", 3, 5),
    Sketcher.Constraint("Equal", 5, 7),
    Sketcher.Constraint("Radius", 1, Q("1.3 mm")),
    Sketcher.Constraint("DistanceX", 0, 1, 0, 2, Q("77.4 mm")),
    Sketcher.Constraint("DistanceY", 2, 1, 2, 2, Q("19.4 mm")),
    Sketcher.Constraint("DistanceX", -1, 1, 1, 2, Q("40 mm")),
    Sketcher.Constraint("DistanceY", -1, 1, 1, 3, Q("57.8 mm")),
])
pad6 = body.newObject("PartDesign::Pad", "Pad005")
pad6.Profile = sketch12
pad6.Length = 2

# Sketch on XY plane
sketch13 = body.newObject("Sketcher::SketchObject", "Sketch012")
sketch13.AttachmentSupport = (doc.getObject("XY_Plane"), [""])
sketch13.MapMode = "FlatFace"
sketch13.AttachmentOffset = App.Placement(V(0, 0, 39.214286), App.Rotation())
sketch13.addGeometry([
    Part.Circle(V(-38.7, 77.2, 0), V(0, 0, 1), 1.25),
    Part.Circle(V(-38.7, 57.8, 0), V(0, 0, 1), 1.25),
    Part.Circle(V(38.7, 77.2, 0), V(0, 0, 1), 1.25),
    Part.Circle(V(38.7, 57.8, 0), V(0, 0, 1), 1.25),
], False)
sketch13.addConstraint([
    Sketcher.Constraint("Equal", 0, 1),
    Sketcher.Constraint("Equal", 1, 2),
    Sketcher.Constraint("Equal", 2, 3),
    Sketcher.Constraint("Symmetric", 0, 3, 2, 3, -2),
    Sketcher.Constraint("Symmetric", 1, 3, 3, 3, -2),
    Sketcher.Constraint("Vertical", 0, 3, 1, 3),
    Sketcher.Constraint("Diameter", 0, Q("2.5 mm")),
    Sketcher.Constraint("DistanceX", 0, 3, -1, 1, Q("38.7 mm")),
    Sketcher.Constraint("DistanceY", -1, 1, 0, 3, Q("77.2 mm")),
    Sketcher.Constraint("DistanceY", -1, 1, 1, 3, Q("57.8 mm")),
])
pocket7 = body.newObject("PartDesign::Pocket", "Pocket006")
pocket7.Profile = sketch13
pocket7.Length = 2

# Sketch on XY plane
sketch14 = body.newObject("Sketcher::SketchObject", "Sketch013")
sketch14.AttachmentSupport = (doc.getObject("XY_Plane"), [""])
sketch14.MapMode = "FlatFace"
sketch14.AttachmentOffset = App.Placement(V(0, 0, 37.214286), App.Rotation())
add_polygon(sketch14, [(-12.838759, 56.5), (-12.838759, 40.5), (14.82571, 40.5), (14.82571, 56.5)])  # lines 0-3
sketch14.addConstraint([
    Sketcher.Constraint("Vertical", 0),
    Sketcher.Constraint("Horizontal", 1),
    Sketcher.Constraint("Vertical", 2),
    Sketcher.Constraint("Horizontal", 3),
    Sketcher.Constraint("DistanceY", 0, 2, 0, 1, Q("16 mm")),
    Sketcher.Constraint("DistanceY", -1, 1, 0, 2, Q("40.5 mm")),
    Sketcher.Constraint("DistanceX", 1, 1, 1, 2, Q("27.664469 mm")),
    Sketcher.Constraint("DistanceX", 0, 2, -1, 1, Q("12.838759 mm")),
])
pocket8 = body.newObject("PartDesign::Pocket", "Pocket007")
pocket8.Profile = sketch14
pocket8.Length = 5

# Sketch on XZ plane
sketch15 = body.newObject("Sketcher::SketchObject", "Sketch014")
sketch15.AttachmentSupport = (doc.getObject("XZ_Plane"), [""])
sketch15.MapMode = "FlatFace"
sketch15.AttachmentOffset = App.Placement(V(0, 0, -5), App.Rotation())
add_polygon(sketch15, [(-31, -9.375945), (-31, 2.586646), (-24.376436, 2.586646), (-24.376436, -9.375945)])  # lines 0-3
add_polygon(sketch15, [(-9.086745, 28.904111), (-9.086745, 33.214286), (10.259234, 33.214286), (10.259234, 28.904111)])  # lines 4-7
add_polygon(sketch15, [(25.679942, -9.375945), (25.679942, 2.586646), (31, 2.586646), (31, -9.375945)])  # lines 8-11
sketch15.addConstraint([
    Sketcher.Constraint("Vertical", 0),
    Sketcher.Constraint("Horizontal", 1),
    Sketcher.Constraint("Vertical", 2),
    Sketcher.Constraint("Horizontal", 3),
    Sketcher.Constraint("Vertical", 4),
    Sketcher.Constraint("Horizontal", 5),
    Sketcher.Constraint("Vertical", 6),
    Sketcher.Constraint("Horizontal", 7),
    Sketcher.Constraint("Vertical", 8),
    Sketcher.Constraint("Horizontal", 9),
    Sketcher.Constraint("Vertical", 10),
    Sketcher.Constraint("Horizontal", 11),
    Sketcher.Constraint("Symmetric", 0, 2, 9, 2, -2),
    Sketcher.Constraint("Horizontal", 3, 2, 10, 2),
    Sketcher.Constraint("DistanceX", 0, 2, -1, 1, Q("31 mm")),
    Sketcher.Constraint("DistanceX", 5, 1, 5, 2, Q("19.345979 mm")),
    Sketcher.Constraint("DistanceX", 9, 1, 9, 2, Q("5.320058 mm")),
    Sketcher.Constraint("DistanceY", 0, 1, 0, 2, Q("11.962591 mm")),
    Sketcher.Constraint("DistanceX", 1, 1, 1, 2, Q("6.623564 mm")),
    Sketcher.Constraint("DistanceY", 4, 1, 4, 2, Q("4.310175 mm")),
    Sketcher.Constraint("DistanceY", -1, 1, 6, 2, Q("28.904111 mm")),
    Sketcher.Constraint("DistanceX", 1, 2, 4, 2, Q("15.289691 mm")),
    Sketcher.Constraint("DistanceY", 1, 2, 4, 2, Q("30.62764 mm")),
])
pocket9 = body.newObject("PartDesign::Pocket", "Pocket008")
pocket9.Profile = sketch15
pocket9.Type = "ThroughAll"
pocket9.Reversed = True

doc.recompute()
